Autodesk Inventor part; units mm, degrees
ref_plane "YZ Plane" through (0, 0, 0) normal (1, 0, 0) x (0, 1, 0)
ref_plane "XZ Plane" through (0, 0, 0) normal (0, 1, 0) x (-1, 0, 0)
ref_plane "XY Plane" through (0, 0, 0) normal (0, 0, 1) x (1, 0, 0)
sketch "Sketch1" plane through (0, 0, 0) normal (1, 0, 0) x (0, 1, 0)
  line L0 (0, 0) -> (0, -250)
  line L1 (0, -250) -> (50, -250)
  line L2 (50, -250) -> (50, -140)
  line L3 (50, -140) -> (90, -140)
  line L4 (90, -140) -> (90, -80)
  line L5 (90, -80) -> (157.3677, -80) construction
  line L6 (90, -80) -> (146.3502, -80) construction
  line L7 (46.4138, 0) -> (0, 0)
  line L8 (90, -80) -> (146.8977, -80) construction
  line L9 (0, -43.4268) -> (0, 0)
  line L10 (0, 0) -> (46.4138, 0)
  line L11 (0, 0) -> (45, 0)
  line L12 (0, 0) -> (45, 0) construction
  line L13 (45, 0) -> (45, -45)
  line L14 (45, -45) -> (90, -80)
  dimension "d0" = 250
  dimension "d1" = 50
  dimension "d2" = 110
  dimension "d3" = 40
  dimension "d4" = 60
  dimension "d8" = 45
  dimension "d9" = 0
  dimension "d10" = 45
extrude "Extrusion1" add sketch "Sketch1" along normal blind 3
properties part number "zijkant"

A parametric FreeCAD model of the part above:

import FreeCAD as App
import Part
import Sketcher


def add_polygon(sketch, points):
    """Adds a closed chain of lines whose ends are joined by coincident constraints."""
    first, n = sketch.GeometryCount, len(points)
    for a, b in zip(points, points[1:] + points[:1]):
        sketch.addGeometry(Part.LineSegment(App.Vector(*a, 0), App.Vector(*b, 0)), False)
    for i in range(n):
        sketch.addConstraint(Sketcher.Constraint("Coincident", first + i, 2, first + (i + 1) % n, 1))

doc = App.newDocument("Part")
body = doc.addObject("PartDesign::Body", "Body")

# Sketch on YZ plane
sketch1 = body.newObject("Sketcher::SketchObject", "Sketch")
sketch1.AttachmentSupport = (doc.getObject("YZ_Plane"), [""])
sketch1.MapMode = "FlatFace"
add_polygon(sketch1, [(45, 0), (0, 0), (0, -250), (50, -250), (50, -140), (90, -140), (90, -80), (45, -45)])  # lines 0-7
sketch1.addConstraint([
    Sketcher.Constraint("Horizontal", 0),
    Sketcher.Constraint("Vertical", 1),
    Sketcher.Constraint("Horizontal", 2),
    Sketcher.Constraint("Vertical", 3),
    Sketcher.Constraint("Horizontal", 4),
    Sketcher.Constraint("Vertical", 5),
    Sketcher.Constraint("Vertical", 7),
    Sketcher.Constraint("Coincident", 0, 2, -1, 1),
    Sketcher.Constraint("Equal", 0, 7),
    Sketcher.Constraint("DistanceX", 0, 2, 0, 1, 45.0),
    Sketcher.Constraint("DistanceX", 2, 1, 2, 2, 50.0),
    Sketcher.Constraint("DistanceX", 4, 1, 4, 2, 40.0),
    Sketcher.Constraint("DistanceY", 1, 2, 1, 1, 250.0),
    Sketcher.Constraint("DistanceY", 3, 1, 3, 2, 110.0),
    Sketcher.Constraint("DistanceY", 5, 1, 5, 2, 60.0),
])
pad1 = body.newObject("PartDesign::Pad", "Pad")
pad1.Profile = sketch1
pad1.Length = 3

doc.recompute()
